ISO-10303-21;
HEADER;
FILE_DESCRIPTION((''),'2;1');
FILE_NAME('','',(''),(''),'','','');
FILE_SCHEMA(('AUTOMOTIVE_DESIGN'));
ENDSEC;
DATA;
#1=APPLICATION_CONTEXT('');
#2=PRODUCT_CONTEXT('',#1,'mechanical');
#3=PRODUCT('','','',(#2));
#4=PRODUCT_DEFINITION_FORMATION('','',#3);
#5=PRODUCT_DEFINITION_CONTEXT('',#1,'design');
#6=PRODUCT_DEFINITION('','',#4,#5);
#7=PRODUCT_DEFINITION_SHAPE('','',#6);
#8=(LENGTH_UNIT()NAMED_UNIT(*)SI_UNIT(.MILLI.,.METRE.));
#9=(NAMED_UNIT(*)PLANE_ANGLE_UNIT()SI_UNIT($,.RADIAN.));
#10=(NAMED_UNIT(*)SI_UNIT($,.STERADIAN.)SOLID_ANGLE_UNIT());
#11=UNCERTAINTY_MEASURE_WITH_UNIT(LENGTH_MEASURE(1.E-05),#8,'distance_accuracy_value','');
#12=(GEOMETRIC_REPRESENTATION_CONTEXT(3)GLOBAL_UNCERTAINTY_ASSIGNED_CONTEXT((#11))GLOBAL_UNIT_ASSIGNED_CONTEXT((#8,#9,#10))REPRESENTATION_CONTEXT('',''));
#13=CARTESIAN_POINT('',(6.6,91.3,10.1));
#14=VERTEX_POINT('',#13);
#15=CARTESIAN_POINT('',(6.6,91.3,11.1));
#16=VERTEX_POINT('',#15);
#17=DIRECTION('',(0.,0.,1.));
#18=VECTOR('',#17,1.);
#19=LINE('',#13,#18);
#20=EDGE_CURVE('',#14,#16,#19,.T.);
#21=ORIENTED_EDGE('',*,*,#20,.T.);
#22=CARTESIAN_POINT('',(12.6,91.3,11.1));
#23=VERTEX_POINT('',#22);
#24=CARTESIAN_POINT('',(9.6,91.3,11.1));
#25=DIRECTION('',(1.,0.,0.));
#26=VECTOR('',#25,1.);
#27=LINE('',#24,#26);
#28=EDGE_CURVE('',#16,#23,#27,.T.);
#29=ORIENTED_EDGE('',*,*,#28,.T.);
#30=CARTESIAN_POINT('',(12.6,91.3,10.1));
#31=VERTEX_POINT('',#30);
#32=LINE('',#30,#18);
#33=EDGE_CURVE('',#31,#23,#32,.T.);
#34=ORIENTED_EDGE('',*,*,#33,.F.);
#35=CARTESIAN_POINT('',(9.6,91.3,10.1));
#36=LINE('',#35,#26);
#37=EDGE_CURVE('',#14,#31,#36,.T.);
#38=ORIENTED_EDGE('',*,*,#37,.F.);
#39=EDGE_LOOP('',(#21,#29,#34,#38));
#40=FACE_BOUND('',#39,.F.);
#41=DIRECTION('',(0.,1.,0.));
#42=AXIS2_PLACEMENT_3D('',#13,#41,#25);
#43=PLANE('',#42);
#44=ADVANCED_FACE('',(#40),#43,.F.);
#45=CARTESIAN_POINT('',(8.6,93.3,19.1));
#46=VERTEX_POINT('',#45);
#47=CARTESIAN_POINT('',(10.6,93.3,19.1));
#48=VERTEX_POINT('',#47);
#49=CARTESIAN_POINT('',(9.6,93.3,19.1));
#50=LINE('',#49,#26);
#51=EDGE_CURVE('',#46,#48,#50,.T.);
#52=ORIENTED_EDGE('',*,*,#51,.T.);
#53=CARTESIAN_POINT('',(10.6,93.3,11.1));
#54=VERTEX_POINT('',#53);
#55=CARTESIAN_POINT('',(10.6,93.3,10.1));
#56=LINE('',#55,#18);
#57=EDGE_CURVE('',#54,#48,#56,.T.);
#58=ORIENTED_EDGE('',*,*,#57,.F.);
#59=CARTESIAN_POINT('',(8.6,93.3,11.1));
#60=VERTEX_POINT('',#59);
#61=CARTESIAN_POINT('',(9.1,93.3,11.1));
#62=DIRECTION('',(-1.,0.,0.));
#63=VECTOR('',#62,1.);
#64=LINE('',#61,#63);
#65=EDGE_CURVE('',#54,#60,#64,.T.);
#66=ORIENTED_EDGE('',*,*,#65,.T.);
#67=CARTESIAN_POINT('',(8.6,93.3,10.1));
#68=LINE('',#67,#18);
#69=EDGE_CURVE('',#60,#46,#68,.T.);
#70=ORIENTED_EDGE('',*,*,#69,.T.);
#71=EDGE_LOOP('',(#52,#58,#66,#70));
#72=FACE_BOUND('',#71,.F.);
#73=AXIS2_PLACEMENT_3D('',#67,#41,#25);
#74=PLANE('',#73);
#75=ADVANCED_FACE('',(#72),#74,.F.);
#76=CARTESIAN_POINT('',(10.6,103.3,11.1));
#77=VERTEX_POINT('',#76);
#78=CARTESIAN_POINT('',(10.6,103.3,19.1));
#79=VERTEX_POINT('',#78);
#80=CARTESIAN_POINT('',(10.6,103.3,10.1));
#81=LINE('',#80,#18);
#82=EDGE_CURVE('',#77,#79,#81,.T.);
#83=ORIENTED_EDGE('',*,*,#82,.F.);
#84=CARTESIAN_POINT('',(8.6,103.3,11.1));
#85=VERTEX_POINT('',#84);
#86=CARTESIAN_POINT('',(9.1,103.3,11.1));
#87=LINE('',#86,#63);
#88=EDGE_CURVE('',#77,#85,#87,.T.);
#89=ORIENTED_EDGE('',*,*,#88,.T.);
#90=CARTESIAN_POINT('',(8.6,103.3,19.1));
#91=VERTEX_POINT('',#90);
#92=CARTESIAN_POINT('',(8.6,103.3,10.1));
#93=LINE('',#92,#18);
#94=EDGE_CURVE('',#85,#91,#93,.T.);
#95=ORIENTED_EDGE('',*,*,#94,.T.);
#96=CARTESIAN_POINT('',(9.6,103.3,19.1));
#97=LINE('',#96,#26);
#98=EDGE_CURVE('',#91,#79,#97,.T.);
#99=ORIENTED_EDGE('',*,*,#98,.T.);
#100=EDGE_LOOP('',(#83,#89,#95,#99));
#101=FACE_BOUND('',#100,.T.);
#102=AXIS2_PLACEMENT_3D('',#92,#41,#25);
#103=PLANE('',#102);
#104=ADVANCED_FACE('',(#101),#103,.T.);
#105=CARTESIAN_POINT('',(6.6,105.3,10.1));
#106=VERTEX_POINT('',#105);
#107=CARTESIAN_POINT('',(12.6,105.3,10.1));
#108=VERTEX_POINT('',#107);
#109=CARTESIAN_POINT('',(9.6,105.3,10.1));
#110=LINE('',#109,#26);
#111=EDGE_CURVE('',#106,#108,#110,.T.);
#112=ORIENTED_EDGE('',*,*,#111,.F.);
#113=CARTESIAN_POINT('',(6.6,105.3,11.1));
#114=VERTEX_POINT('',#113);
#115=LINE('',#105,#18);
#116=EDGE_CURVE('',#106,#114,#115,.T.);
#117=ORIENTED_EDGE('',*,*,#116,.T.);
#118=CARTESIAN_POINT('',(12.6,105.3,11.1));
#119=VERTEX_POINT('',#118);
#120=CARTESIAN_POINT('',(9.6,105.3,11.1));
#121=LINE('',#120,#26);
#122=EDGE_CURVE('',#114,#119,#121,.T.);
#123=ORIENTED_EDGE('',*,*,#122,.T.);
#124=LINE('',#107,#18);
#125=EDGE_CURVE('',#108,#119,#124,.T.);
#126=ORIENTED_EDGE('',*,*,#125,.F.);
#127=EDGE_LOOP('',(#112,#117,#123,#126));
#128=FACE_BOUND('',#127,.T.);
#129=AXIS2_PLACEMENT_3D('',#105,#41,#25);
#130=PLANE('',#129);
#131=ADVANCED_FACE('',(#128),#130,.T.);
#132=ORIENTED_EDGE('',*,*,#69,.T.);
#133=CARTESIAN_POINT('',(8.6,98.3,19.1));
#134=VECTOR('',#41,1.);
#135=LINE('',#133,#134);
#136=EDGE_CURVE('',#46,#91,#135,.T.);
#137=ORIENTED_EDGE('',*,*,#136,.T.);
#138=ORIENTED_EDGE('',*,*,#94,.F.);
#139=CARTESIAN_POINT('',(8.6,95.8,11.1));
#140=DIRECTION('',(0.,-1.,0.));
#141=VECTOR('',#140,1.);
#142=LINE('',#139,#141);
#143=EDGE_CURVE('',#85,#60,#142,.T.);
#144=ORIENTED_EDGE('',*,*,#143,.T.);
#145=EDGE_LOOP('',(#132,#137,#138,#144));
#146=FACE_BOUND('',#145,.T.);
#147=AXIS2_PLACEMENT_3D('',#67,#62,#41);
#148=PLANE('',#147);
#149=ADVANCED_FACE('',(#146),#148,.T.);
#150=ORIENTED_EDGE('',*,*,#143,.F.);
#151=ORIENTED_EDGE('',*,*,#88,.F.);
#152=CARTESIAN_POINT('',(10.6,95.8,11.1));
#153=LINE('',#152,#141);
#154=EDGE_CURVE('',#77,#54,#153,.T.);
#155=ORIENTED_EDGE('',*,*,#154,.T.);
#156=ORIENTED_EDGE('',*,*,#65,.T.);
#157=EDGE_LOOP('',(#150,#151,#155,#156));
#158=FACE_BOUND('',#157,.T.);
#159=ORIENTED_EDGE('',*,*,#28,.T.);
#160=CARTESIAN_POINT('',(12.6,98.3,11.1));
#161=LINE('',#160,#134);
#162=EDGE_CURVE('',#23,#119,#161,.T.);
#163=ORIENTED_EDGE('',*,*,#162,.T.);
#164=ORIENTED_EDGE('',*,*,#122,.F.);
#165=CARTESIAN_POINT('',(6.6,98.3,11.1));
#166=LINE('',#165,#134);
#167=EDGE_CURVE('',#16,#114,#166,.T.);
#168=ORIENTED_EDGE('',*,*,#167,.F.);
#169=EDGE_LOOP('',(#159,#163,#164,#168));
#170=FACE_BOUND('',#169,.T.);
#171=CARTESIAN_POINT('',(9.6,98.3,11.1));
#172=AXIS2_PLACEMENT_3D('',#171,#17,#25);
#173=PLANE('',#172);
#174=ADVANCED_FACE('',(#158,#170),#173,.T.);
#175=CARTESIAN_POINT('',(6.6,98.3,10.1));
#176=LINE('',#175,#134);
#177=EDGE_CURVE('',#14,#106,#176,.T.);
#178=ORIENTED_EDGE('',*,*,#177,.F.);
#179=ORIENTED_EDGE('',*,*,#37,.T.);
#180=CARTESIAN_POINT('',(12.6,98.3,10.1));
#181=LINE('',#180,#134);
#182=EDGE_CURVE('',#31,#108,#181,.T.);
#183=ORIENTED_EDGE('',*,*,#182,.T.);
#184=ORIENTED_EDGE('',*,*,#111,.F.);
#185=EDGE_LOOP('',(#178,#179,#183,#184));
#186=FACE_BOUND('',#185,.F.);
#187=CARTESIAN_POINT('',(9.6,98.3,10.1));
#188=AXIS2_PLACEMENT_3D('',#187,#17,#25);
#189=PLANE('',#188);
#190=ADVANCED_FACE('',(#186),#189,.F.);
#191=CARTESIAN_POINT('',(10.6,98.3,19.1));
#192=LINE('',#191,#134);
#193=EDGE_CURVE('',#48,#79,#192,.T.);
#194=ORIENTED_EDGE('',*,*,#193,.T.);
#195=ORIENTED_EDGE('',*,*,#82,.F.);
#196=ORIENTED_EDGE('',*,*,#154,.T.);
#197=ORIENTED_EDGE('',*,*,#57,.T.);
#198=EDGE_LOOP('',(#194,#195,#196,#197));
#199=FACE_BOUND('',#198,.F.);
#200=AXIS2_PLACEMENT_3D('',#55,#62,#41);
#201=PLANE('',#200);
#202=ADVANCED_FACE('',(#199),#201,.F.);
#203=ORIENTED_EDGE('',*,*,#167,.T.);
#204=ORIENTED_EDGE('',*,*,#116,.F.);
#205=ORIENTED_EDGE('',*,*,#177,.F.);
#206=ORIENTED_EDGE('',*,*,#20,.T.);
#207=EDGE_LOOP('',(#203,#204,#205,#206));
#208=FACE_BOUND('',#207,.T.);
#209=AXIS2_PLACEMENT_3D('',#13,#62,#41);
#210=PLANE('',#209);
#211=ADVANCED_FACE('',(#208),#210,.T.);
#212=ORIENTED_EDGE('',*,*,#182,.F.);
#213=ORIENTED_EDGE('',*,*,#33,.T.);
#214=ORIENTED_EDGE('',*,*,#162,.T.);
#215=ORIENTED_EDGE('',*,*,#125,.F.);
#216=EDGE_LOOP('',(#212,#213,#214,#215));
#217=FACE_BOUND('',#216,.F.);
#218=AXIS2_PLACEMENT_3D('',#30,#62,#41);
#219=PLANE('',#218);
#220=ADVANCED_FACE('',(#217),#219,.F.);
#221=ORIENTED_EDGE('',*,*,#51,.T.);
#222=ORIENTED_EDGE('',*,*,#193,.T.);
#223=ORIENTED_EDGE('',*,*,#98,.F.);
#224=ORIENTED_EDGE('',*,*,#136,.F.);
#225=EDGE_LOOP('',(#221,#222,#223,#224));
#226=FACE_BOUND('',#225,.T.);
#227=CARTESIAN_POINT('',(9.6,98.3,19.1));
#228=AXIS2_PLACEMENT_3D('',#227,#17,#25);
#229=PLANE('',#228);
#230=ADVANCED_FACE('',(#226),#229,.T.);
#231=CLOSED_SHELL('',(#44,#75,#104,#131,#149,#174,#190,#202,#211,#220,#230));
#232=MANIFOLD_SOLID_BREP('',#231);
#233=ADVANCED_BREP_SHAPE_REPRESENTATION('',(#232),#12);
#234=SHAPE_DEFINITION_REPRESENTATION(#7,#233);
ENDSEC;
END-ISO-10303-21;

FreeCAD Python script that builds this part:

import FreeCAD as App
import Part
import Sketcher

V = App.Vector
Q = App.Units.Quantity


def add_polygon(sketch, points):
    """Adds a closed chain of lines whose ends are joined by coincident constraints."""
    first, n = sketch.GeometryCount, len(points)
    for a, b in zip(points, points[1:] + points[:1]):
        sketch.addGeometry(Part.LineSegment(App.Vector(*a, 0), App.Vector(*b, 0)), False)
    for i in range(n):
        sketch.addConstraint(Sketcher.Constraint("Coincident", first + i, 2, first + (i + 1) % n, 1))

doc = App.newDocument("Part")
body = doc.addObject("PartDesign::Body", "Body")

sketch1 = body.newObject("Sketcher::SketchObject", "Sketch")
sketch1.AttachmentSupport = (doc.getObject("XY_Plane"), [""])
sketch1.MapMode = "FlatFace"
sketch1.AttachmentOffset = App.Placement(V(0, 0, 10.1), App.Rotation())
add_polygon(sketch1, [(8.6, 103.3), (8.6, 93.3), (10.6, 93.3), (10.6, 103.3)])
sketch1.addConstraint([
    Sketcher.Constraint("Vertical", 0),
    Sketcher.Constraint("Horizontal", 1),
    Sketcher.Constraint("Vertical", 2),
    Sketcher.Constraint("Horizontal", 3),
    Sketcher.Constraint("DistanceX", 1, 1, 1, 2, Q("2 mm")),
    Sketcher.Constraint("DistanceY", 0, 2, 0, 1, Q("10 mm")),
    Sketcher.Constraint("DistanceX", -1, 1, 0, 2, Q("8.6 mm")),
    Sketcher.Constraint("DistanceY", -1, 1, 0, 2, Q("93.3 mm")),
])
pad1 = body.newObject("PartDesign::Pad", "Pad")
pad1.Profile = sketch1
pad1.Length = 9
body2 = doc.addObject("PartDesign::Body", "Body001")

sketch2 = body2.newObject("Sketcher::SketchObject", "Sketch001")
sketch2.AttachmentSupport = (doc.getObject("XY_Plane001"), [""])
sketch2.MapMode = "FlatFace"
sketch2.AttachmentOffset = App.Placement(V(0, 0, 10.1), App.Rotation())
add_polygon(sketch2, [(7, 105), (7, 91), (13, 91), (13, 105)])
sketch2.addConstraint([
    Sketcher.Constraint("Vertical", 0),
    Sketcher.Constraint("Horizontal", 1),
    Sketcher.Constraint("Vertical", 2),
    Sketcher.Constraint("Horizontal", 3),
    Sketcher.Constraint("DistanceX", 1, 1, 1, 2, Q("6 mm")),
    Sketcher.Constraint("DistanceY", 0, 2, 0, 1, Q("14 mm")),
    Sketcher.Constraint("DistanceX", -1, 1, 0, 2, Q("6.6 mm")),
    Sketcher.Constraint("DistanceY", -1, 1, 0, 2, Q("91.3 mm")),
])
pad2 = body2.newObject("PartDesign::Pad", "Pad001")
pad2.Profile = sketch2
pad2.Length = 1
doc.recompute()

boolean = body2.newObject("PartDesign::Boolean", "Boolean")
boolean.Type = "Fuse"
boolean.addObjects([body])

doc.recompute()
